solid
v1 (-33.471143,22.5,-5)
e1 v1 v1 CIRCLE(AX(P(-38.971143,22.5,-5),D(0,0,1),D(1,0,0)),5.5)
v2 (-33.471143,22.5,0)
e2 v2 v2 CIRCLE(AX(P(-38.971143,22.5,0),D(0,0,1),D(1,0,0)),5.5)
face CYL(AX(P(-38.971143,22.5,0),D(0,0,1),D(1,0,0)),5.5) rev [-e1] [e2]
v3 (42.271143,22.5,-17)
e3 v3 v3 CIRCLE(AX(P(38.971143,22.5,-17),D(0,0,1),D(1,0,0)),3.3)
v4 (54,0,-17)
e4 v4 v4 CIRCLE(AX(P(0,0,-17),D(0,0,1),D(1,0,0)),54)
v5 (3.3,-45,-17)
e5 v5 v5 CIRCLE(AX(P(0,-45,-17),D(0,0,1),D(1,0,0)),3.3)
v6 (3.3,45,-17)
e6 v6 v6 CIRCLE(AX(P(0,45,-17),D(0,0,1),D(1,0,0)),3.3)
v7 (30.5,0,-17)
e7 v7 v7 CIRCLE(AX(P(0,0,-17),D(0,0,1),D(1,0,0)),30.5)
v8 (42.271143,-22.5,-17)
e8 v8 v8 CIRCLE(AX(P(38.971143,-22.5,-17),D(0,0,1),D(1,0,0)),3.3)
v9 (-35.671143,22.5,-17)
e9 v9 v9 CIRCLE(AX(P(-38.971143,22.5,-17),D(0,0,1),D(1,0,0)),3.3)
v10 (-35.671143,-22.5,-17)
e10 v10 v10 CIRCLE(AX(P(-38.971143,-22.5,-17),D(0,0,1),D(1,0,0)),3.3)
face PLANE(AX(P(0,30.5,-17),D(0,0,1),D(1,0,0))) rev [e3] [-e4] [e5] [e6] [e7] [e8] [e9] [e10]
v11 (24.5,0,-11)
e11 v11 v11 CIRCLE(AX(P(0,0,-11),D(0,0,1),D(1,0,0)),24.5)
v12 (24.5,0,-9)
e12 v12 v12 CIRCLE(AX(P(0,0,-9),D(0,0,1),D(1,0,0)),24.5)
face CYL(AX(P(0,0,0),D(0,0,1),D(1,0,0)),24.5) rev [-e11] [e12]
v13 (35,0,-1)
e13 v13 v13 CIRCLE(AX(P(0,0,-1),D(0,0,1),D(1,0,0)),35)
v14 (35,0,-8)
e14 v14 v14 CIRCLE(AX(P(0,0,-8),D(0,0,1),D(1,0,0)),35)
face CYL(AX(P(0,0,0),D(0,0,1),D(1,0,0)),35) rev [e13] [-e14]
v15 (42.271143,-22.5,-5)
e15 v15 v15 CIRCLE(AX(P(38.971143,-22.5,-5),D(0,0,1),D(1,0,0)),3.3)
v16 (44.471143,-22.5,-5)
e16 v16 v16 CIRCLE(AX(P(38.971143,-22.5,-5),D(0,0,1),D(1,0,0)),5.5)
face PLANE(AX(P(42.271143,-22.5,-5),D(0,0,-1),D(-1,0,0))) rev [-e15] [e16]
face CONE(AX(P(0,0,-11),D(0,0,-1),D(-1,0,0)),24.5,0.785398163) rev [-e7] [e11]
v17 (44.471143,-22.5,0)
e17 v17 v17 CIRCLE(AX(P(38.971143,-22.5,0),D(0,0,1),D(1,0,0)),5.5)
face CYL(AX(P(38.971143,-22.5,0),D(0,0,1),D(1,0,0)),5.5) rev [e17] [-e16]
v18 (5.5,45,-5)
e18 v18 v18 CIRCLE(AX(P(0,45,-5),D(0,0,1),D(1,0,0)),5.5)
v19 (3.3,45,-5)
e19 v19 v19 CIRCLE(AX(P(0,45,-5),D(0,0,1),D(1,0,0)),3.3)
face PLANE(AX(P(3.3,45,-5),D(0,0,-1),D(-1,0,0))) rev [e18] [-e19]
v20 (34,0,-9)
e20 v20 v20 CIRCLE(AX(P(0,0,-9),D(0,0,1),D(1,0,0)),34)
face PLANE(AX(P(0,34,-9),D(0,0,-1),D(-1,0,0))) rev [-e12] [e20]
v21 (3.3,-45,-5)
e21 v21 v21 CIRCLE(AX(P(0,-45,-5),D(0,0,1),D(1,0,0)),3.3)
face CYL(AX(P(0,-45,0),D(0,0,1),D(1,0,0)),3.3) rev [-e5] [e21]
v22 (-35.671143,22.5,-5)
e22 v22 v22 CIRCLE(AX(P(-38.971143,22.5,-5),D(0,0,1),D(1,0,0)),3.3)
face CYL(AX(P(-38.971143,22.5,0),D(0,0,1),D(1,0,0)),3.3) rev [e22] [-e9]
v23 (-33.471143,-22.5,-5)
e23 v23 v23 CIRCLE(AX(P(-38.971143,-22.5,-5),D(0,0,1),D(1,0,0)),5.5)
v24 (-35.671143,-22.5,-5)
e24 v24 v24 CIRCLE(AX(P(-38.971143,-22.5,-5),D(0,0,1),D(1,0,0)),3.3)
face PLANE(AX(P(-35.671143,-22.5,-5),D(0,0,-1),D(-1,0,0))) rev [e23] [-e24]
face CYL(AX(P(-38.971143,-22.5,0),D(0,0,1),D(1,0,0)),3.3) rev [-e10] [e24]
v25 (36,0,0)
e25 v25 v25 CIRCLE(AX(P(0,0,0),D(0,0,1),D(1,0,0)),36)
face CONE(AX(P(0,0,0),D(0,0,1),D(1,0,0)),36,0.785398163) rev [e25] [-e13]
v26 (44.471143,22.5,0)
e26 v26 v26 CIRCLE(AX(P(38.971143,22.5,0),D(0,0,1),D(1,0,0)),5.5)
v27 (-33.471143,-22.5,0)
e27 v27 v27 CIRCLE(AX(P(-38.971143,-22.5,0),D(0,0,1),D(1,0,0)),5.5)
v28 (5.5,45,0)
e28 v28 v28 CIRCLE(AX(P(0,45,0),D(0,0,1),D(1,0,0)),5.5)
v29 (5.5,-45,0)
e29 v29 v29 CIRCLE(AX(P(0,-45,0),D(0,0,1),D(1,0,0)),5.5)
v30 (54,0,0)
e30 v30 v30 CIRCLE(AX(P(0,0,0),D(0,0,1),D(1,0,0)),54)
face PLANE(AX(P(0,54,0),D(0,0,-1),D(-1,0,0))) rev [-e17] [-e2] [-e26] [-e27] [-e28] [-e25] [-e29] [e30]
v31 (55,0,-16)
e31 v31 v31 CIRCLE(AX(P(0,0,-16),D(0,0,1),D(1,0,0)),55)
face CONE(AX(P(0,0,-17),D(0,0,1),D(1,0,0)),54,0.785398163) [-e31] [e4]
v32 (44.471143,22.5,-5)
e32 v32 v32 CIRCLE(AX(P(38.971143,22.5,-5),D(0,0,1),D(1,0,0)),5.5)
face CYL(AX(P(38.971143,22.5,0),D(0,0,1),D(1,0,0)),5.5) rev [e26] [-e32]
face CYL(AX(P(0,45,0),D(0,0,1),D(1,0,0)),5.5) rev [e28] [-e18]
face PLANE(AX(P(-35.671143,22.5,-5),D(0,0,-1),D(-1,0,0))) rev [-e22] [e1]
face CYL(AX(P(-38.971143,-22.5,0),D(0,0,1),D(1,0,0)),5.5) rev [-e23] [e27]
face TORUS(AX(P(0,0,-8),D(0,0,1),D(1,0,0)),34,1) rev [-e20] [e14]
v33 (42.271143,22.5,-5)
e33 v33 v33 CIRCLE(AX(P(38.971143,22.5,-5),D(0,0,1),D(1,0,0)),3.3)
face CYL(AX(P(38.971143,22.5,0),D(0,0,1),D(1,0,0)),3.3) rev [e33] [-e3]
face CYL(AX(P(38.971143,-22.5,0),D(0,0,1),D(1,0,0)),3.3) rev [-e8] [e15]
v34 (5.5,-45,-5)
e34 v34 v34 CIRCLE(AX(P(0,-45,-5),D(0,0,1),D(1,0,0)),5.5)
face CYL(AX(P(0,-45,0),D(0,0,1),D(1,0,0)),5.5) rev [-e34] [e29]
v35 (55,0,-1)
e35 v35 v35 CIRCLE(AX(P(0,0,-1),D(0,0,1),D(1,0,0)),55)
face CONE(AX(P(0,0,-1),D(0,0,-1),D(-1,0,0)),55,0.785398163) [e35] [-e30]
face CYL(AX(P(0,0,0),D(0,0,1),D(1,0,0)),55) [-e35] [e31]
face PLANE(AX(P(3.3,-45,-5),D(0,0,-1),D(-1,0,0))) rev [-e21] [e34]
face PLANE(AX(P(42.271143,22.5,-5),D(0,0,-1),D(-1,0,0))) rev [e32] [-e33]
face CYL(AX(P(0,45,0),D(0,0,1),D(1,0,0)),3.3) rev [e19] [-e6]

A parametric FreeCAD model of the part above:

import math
import FreeCAD as App
import Part
import Sketcher

V = App.Vector
Q = App.Units.Quantity

doc = App.newDocument("Part")
params = doc.addObject("Spreadsheet::Sheet", "Params")
for row, (alias, value) in enumerate([
    ("sketch1_radius", "1 mm"),
    ("sketch1_width", "18 mm"),
    ("sketch1_height", "2 mm"),
    ("sketch1_height2", "15 mm"),
    ("sketch1_height3", "7 mm"),
    ("revolution_angle", "360 deg"),
    ("sketch2_diameter", "6.6 mm"),
    ("hole_diameter", "6.6 mm"),
    ("hole_cbore_diameter", "11 mm"),
    ("hole_cbore_depth", "5 mm"),
], start=1):
    params.set(f"A{row}", alias)
    params.set(f"B{row}", "=" + value)
    params.setAlias(f"B{row}", alias)

body = doc.addObject("PartDesign::Body", "Body")

# Sketch on YZ plane
sketch1 = body.newObject("Sketcher::SketchObject", "Sketch")
sketch1.AttachmentSupport = (doc.getObject("YZ_Plane"), [""])
sketch1.MapMode = "FlatFace"
sketch1.addGeometry(Part.LineSegment(V(24.5, -9, 0), V(24.5, -11, 0)), False)
sketch1.addGeometry(Part.LineSegment(V(24.5, -11, 0), V(30.5, -17, 0)), False)
sketch1.addGeometry(Part.LineSegment(V(30.5, -17, 0), V(54, -17, 0)), False)
sketch1.addGeometry(Part.LineSegment(V(54, -17, 0), V(55, -16, 0)), False)
sketch1.addGeometry(Part.LineSegment(V(55, -16, 0), V(55, -1, 0)), False)
sketch1.addGeometry(Part.LineSegment(V(55, -1, 0), V(54, 0, 0)), False)
sketch1.addGeometry(Part.LineSegment(V(54, 0, 0), V(36, 0, 0)), False)
sketch1.addGeometry(Part.LineSegment(V(36, 0, 0), V(35, -1, 0)), False)
sketch1.addGeometry(Part.LineSegment(V(35, -1, 0), V(35, -8, 0)), False)
sketch1.addGeometry(Part.ArcOfCircle(Part.Circle(V(34, -8, 0), V(0, 0, 1), 1), math.radians(-90), math.radians(0)), False)
sketch1.addGeometry(Part.LineSegment(V(34, -9, 0), V(24.5, -9, 0)), False)
sketch1.addConstraint(Sketcher.Constraint("Coincident", 0, 2, 1, 1))
sketch1.addConstraint(Sketcher.Constraint("Coincident", 1, 2, 2, 1))
sketch1.addConstraint(Sketcher.Constraint("Coincident", 2, 2, 3, 1))
sketch1.addConstraint(Sketcher.Constraint("Coincident", 3, 2, 4, 1))
sketch1.addConstraint(Sketcher.Constraint("Coincident", 4, 2, 5, 1))
sketch1.addConstraint(Sketcher.Constraint("Coincident", 5, 2, 6, 1))
sketch1.addConstraint(Sketcher.Constraint("Coincident", 6, 2, 7, 1))
sketch1.addConstraint(Sketcher.Constraint("Coincident", 7, 2, 8, 1))
sketch1.addConstraint(Sketcher.Constraint("Tangent", 8, 2, 9, 2))
sketch1.addConstraint(Sketcher.Constraint("Tangent", 9, 1, 10, 1))
sketch1.addConstraint(Sketcher.Constraint("Coincident", 10, 2, 0, 1))
sketch1.addConstraint(Sketcher.Constraint("Vertical", 0))
sketch1.addConstraint(Sketcher.Constraint("Horizontal", 2))
sketch1.addConstraint(Sketcher.Constraint("Vertical", 4))
sketch1.addConstraint(Sketcher.Constraint("Horizontal", 6))
sketch1.addConstraint(Sketcher.Constraint("Vertical", 8))
sketch1.addConstraint(Sketcher.Constraint("Horizontal", 10))
sketch1.addConstraint(Sketcher.Constraint("PointOnObject", 5, 2, -1))
sketch1.addConstraint(Sketcher.Constraint("Perpendicular", 1, 3))
sketch1.addConstraint(Sketcher.Constraint("Perpendicular", 3, 5))
sketch1.addConstraint(Sketcher.Constraint("Perpendicular", 5, 7))
sketch1.addConstraint(Sketcher.Constraint("Horizontal", 4, 2, 7, 2))
sketch1.addConstraint(Sketcher.Constraint("Vertical", 2, 2, 5, 2))
sketch1.addConstraint(Sketcher.Constraint("Equal", 3, 5))
sketch1.addConstraint(Sketcher.Constraint("Radius", 9, Q("1 mm")))
sketch1.addConstraint(Sketcher.Constraint("DistanceX", 6, 2, 6, 1, Q("18 mm")))
sketch1.addConstraint(Sketcher.Constraint("DistanceY", 0, 2, 0, 1, Q("2 mm")))
sketch1.addConstraint(Sketcher.Constraint("DistanceY", 4, 1, 4, 2, Q("15 mm")))
sketch1.addConstraint(Sketcher.Constraint("DistanceY", 8, 2, 8, 1, Q("7 mm")))
sketch1.addConstraint(Sketcher.Constraint("DistanceX", 2, 1, 2, 2, Q("23.5 mm")))
sketch1.addConstraint(Sketcher.Constraint("DistanceX", -1, 1, 9, 3, Q("34 mm")))
sketch1.addConstraint(Sketcher.Constraint("DistanceY", 9, 3, -1, 1, Q("8 mm")))
sketch1.setExpression("Constraints[24]", "Params.sketch1_radius")
sketch1.setExpression("Constraints[25]", "Params.sketch1_width")
sketch1.setExpression("Constraints[26]", "Params.sketch1_height")
sketch1.setExpression("Constraints[27]", "Params.sketch1_height2")
sketch1.setExpression("Constraints[28]", "Params.sketch1_height3")
revolution = body.newObject("PartDesign::Revolution", "Revolution")
revolution.Profile = sketch1
revolution.ReferenceAxis = (sketch1, ["V_Axis"])
revolution.setExpression("Angle", "Params.revolution_angle")

# Sketch on XY plane
sketch2 = body.newObject("Sketcher::SketchObject", "Sketch001")
sketch2.AttachmentSupport = (doc.getObject("XY_Plane"), [""])
sketch2.MapMode = "FlatFace"
sketch2.addGeometry(Part.Circle(V(0, 45, 0), V(0, 0, 1), 3.3), False)
sketch2.addConstraint(Sketcher.Constraint("PointOnObject", 0, 3, -2))
sketch2.addConstraint(Sketcher.Constraint("Diameter", 0, Q("6.6 mm")))
sketch2.addConstraint(Sketcher.Constraint("DistanceY", -1, 1, 0, 3, Q("45 mm")))
sketch2.setExpression("Constraints[1]", "Params.sketch2_diameter")
doc.recompute()
hole = body.newObject("PartDesign::Hole", "Hole")
hole.Profile = sketch2
hole.ThreadType = "None"
hole.setExpression("Diameter", "Params.hole_diameter")
hole.DepthType = "ThroughAll"
hole.HoleCutType = "Counterbore"
hole.setExpression("HoleCutDiameter", "Params.hole_cbore_diameter")
hole.setExpression("HoleCutDepth", "Params.hole_cbore_depth")
doc.recompute()

polarpattern = body.newObject("PartDesign::PolarPattern", "PolarPattern")
polarpattern.Originals = [hole]
polarpattern.Axis = (doc.getObject("Z_Axis"), [""])
polarpattern.Angle = 360
polarpattern.Occurrences = 6
body.Tip = polarpattern

doc.recompute()
